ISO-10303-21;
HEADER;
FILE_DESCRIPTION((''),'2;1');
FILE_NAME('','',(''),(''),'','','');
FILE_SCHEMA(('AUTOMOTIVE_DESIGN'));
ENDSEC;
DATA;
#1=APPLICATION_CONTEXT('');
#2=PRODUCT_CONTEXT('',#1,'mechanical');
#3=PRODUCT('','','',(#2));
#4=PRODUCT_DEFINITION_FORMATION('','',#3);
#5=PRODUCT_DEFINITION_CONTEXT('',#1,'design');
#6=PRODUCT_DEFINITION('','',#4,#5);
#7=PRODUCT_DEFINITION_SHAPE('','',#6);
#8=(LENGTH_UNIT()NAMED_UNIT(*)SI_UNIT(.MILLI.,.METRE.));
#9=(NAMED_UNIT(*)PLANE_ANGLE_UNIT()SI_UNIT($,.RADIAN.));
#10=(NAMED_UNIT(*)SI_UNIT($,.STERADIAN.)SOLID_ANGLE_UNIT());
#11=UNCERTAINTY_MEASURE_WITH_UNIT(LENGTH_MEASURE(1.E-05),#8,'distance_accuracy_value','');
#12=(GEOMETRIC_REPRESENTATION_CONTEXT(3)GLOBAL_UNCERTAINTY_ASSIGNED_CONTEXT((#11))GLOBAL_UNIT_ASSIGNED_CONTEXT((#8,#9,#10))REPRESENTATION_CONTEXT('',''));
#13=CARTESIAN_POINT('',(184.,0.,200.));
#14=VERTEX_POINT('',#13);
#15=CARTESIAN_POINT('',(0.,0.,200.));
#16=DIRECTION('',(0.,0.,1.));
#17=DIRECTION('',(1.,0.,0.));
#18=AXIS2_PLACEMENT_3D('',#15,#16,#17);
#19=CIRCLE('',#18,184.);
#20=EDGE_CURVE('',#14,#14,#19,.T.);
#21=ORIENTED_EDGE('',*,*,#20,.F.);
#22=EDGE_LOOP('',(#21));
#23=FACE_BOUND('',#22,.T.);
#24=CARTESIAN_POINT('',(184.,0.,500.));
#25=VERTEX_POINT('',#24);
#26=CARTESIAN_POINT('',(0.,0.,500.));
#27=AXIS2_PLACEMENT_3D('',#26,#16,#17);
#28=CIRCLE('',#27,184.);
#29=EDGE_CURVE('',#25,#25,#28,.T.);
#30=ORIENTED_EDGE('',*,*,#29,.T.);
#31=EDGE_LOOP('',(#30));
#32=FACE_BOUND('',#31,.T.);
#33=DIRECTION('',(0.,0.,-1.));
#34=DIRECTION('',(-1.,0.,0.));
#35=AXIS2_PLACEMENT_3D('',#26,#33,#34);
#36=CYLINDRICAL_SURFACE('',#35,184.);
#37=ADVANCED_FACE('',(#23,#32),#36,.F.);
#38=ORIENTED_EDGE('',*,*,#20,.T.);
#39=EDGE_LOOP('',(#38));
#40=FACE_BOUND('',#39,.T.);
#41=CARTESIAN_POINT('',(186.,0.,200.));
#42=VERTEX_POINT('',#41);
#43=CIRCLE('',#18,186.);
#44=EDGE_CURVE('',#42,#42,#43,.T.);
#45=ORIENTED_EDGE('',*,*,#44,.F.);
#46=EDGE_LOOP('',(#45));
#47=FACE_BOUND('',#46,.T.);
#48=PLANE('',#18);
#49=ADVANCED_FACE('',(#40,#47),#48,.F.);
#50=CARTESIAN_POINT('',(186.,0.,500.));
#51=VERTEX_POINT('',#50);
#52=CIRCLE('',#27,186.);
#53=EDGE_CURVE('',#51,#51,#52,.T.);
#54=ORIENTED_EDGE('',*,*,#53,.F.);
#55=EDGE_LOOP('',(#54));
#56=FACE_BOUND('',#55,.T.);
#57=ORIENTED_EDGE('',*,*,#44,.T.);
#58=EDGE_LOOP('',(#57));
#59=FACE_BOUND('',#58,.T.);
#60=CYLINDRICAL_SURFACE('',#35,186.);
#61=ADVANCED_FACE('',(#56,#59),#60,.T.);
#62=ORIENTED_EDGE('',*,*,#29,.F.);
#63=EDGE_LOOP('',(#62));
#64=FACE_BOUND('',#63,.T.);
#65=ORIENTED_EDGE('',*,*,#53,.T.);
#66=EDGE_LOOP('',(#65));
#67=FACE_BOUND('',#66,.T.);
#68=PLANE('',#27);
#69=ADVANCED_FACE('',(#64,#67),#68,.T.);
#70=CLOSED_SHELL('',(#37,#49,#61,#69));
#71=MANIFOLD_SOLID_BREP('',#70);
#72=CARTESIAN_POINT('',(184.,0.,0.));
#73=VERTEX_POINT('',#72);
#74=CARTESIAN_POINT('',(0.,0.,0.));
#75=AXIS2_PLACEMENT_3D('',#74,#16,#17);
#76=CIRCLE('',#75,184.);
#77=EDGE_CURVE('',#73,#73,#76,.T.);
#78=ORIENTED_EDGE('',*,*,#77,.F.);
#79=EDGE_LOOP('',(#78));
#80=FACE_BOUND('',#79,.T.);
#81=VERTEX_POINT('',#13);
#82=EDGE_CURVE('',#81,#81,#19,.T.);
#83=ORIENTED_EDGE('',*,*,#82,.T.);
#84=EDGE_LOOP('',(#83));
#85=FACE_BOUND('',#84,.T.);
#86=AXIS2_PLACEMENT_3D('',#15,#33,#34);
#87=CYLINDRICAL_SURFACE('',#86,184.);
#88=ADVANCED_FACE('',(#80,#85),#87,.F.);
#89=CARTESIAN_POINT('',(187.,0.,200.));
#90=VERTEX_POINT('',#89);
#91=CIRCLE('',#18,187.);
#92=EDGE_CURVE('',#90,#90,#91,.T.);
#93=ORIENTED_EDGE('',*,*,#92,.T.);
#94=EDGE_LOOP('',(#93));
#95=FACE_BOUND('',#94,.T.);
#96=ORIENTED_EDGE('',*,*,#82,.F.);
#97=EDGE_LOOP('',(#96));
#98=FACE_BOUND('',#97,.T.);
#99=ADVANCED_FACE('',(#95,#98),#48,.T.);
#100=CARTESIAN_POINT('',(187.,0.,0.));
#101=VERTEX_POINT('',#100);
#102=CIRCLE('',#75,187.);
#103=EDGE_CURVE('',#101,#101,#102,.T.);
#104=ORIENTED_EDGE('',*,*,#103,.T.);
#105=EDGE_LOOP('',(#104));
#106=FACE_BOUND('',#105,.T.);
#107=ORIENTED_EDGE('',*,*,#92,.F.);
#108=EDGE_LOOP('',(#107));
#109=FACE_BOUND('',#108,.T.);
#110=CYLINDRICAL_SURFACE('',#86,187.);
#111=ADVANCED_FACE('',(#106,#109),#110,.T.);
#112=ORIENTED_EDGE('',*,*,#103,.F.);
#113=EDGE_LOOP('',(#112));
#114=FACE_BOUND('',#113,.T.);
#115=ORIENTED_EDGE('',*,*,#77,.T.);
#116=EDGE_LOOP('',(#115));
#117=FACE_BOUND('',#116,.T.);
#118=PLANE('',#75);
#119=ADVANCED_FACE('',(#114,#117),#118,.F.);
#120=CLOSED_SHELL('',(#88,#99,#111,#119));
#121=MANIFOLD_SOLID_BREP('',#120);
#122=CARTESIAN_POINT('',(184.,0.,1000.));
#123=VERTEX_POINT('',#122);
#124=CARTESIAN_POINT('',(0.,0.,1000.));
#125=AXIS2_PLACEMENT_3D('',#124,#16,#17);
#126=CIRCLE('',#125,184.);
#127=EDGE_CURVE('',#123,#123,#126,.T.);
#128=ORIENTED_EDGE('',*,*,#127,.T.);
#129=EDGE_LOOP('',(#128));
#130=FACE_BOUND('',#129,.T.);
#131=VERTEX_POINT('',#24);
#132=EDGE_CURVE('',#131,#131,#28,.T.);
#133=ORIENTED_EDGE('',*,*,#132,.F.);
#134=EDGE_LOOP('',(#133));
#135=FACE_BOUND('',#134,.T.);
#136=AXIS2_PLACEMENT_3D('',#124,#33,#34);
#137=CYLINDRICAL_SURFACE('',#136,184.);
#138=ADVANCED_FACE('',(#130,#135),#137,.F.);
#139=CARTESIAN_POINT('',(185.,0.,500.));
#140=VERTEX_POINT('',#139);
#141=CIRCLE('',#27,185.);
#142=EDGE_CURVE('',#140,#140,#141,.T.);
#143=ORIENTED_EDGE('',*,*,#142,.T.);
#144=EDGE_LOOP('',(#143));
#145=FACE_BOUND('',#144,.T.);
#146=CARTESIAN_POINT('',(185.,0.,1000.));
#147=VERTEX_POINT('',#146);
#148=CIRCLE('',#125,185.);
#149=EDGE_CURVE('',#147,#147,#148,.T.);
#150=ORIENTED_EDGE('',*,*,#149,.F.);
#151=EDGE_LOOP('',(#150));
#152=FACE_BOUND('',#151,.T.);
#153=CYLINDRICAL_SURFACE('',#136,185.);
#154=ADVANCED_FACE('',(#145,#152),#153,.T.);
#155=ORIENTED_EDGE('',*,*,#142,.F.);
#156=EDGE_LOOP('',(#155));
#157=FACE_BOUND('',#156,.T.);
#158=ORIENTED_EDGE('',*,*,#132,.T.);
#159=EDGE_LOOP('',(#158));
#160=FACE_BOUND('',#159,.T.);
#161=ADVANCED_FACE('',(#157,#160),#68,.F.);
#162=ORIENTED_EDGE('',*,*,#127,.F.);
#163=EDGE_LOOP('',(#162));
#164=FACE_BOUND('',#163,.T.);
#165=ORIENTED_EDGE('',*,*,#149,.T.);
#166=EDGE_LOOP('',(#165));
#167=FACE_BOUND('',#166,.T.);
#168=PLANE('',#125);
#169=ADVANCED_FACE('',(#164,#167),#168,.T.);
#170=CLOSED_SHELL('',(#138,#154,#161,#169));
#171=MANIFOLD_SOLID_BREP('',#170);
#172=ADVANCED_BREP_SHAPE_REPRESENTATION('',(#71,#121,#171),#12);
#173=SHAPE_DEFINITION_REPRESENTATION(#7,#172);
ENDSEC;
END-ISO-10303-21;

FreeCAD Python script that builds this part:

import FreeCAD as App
import Part
import Sketcher
from FreeCAD import Vector
Q = App.Units.Quantity

doc = App.newDocument("Part")
body = doc.addObject("PartDesign::Body", "Body")

sketch1 = doc.addObject("Sketcher::SketchObject", "Sketch")
body.addObject(sketch1)
sketch1.AttachmentSupport = (doc.XY_Plane, [""])
sketch1.MapMode = "FlatFace"
sketch1.addGeometry(Part.Circle(Vector(0, 0, 0), Vector(0, 0, 1), 187), False)
sketch1.addGeometry(Part.Circle(Vector(0, 0, 0), Vector(0, 0, 1), 184), False)
sketch1.addConstraint(Sketcher.Constraint("Coincident", 0, 3, -1, 1))
sketch1.addConstraint(Sketcher.Constraint("Coincident", 1, 3, -1, 1))
sketch1.addConstraint(Sketcher.Constraint("Diameter", 0, Q("374 mm")))
sketch1.addConstraint(Sketcher.Constraint("Diameter", 1, Q("368 mm")))
pad1 = doc.addObject("PartDesign::Pad", "Pad")
body.addObject(pad1)
pad1.Profile = sketch1
pad1.Length = 200
body2 = doc.addObject("PartDesign::Body", "Body001")

sketch2 = doc.addObject("Sketcher::SketchObject", "Sketch001")
body2.addObject(sketch2)
sketch2.AttachmentSupport = (doc.getObject("XY_Plane001"), [""])
sketch2.MapMode = "FlatFace"
sketch2.AttachmentOffset = App.Placement(Vector(0, 0, 200), App.Rotation())
sketch2.addGeometry(Part.Circle(Vector(0, 0, 0), Vector(0, 0, 1), 186), False)
sketch2.addGeometry(Part.Circle(Vector(0, 0, 0), Vector(0, 0, 1), 184), False)
sketch2.addConstraint(Sketcher.Constraint("Coincident", 0, 3, -1, 1))
sketch2.addConstraint(Sketcher.Constraint("Coincident", 1, 3, -1, 1))
sketch2.addConstraint(Sketcher.Constraint("Diameter", 0, Q("372 mm")))
sketch2.addConstraint(Sketcher.Constraint("Diameter", 1, Q("368 mm")))
pad2 = doc.addObject("PartDesign::Pad", "Pad001")
body2.addObject(pad2)
pad2.Profile = sketch2
pad2.Length = 300
body3 = doc.addObject("PartDesign::Body", "Body002")

sketch3 = doc.addObject("Sketcher::SketchObject", "Sketch002")
body3.addObject(sketch3)
sketch3.AttachmentSupport = (doc.getObject("XY_Plane002"), [""])
sketch3.MapMode = "FlatFace"
sketch3.AttachmentOffset = App.Placement(Vector(0, 0, 500), App.Rotation())
sketch3.addGeometry(Part.Circle(Vector(0, 0, 0), Vector(0, 0, 1), 185), False)
sketch3.addGeometry(Part.Circle(Vector(0, 0, 0), Vector(0, 0, 1), 184), False)
sketch3.addConstraint(Sketcher.Constraint("Coincident", 0, 3, -1, 1))
sketch3.addConstraint(Sketcher.Constraint("Coincident", 1, 3, -1, 1))
sketch3.addConstraint(Sketcher.Constraint("Diameter", 0, Q("370 mm")))
sketch3.addConstraint(Sketcher.Constraint("Diameter", 1, Q("368 mm")))
pad3 = doc.addObject("PartDesign::Pad", "Pad002")
body3.addObject(pad3)
pad3.Profile = sketch3
pad3.Length = 500

doc.recompute()
